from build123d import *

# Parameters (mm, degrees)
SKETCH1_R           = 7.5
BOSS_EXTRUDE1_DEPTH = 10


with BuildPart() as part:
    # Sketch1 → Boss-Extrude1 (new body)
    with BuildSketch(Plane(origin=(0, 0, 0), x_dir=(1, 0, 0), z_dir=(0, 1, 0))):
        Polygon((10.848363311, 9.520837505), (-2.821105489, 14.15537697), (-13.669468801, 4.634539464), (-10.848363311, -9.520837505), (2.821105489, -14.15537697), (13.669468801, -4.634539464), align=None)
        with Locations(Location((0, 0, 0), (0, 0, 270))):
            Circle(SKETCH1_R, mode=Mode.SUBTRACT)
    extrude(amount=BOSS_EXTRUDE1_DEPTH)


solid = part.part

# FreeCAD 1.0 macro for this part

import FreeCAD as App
import Part
import Sketcher
from FreeCAD import Vector

doc = App.newDocument("Part")
body = doc.addObject("PartDesign::Body", "Body")

# Sketch on XZ plane
sketch1 = body.newObject("Sketcher::SketchObject", "Sketch")
sketch1.AttachmentSupport = (doc.getObject("XZ_Plane"), [""])
sketch1.MapMode = "FlatFace"
sketch1.addGeometry([
    Part.LineSegment(Vector(11, -10, 0), Vector(-3, -14, 0)),  # 0
    Part.LineSegment(Vector(-3, -14, 0), Vector(-14, -5, 0)),  # 1
    Part.LineSegment(Vector(-14, -5, 0), Vector(-11, 10, 0)),  # 2
    Part.LineSegment(Vector(-11, 10, 0), Vector(3, 14, 0)),  # 3
    Part.LineSegment(Vector(3, 14, 0), Vector(14, 5, 0)),  # 4
    Part.LineSegment(Vector(14, 5, 0), Vector(11, -10, 0)),  # 5
    Part.Circle(Vector(0, 0, 0), Vector(0, 0, 1), 8),  # 6
], False)
sketch1.addConstraint([
    Sketcher.Constraint("Coincident", 0, 2, 1, 1),
    Sketcher.Constraint("Coincident", 1, 2, 2, 1),
    Sketcher.Constraint("Coincident", 2, 2, 3, 1),
    Sketcher.Constraint("Coincident", 3, 2, 4, 1),
    Sketcher.Constraint("Coincident", 4, 2, 5, 1),
    Sketcher.Constraint("Coincident", 5, 2, 0, 1),
    Sketcher.Constraint("Coincident", 6, 3, -1, 1),
    Sketcher.Constraint("Symmetric", 0, 2, 3, 2, -1, 1),
    Sketcher.Constraint("Symmetric", 1, 2, 4, 2, -1, 1),
    Sketcher.Constraint("Symmetric", 2, 2, 5, 2, -1, 1),
    Sketcher.Constraint("Equal", 0, 1),
    Sketcher.Constraint("Equal", 1, 2),
    Sketcher.Constraint("Diameter", 6, 15.0),
    Sketcher.Constraint("DistanceY", 4, 2, 2, 2, 4.886298),
    Sketcher.Constraint("DistanceX", 1, 2, -1, 1, 13.669469),
    Sketcher.Constraint("DistanceY", 1, 2, -1, 1, 4.634539),
    Sketcher.Constraint("DistanceX", 2, 2, 3, 2, 13.669469),
])
pad1 = body.newObject("PartDesign::Pad", "Pad")
pad1.Profile = sketch1
pad1.Length = 10
pad1.Reversed = True

doc.recompute()
